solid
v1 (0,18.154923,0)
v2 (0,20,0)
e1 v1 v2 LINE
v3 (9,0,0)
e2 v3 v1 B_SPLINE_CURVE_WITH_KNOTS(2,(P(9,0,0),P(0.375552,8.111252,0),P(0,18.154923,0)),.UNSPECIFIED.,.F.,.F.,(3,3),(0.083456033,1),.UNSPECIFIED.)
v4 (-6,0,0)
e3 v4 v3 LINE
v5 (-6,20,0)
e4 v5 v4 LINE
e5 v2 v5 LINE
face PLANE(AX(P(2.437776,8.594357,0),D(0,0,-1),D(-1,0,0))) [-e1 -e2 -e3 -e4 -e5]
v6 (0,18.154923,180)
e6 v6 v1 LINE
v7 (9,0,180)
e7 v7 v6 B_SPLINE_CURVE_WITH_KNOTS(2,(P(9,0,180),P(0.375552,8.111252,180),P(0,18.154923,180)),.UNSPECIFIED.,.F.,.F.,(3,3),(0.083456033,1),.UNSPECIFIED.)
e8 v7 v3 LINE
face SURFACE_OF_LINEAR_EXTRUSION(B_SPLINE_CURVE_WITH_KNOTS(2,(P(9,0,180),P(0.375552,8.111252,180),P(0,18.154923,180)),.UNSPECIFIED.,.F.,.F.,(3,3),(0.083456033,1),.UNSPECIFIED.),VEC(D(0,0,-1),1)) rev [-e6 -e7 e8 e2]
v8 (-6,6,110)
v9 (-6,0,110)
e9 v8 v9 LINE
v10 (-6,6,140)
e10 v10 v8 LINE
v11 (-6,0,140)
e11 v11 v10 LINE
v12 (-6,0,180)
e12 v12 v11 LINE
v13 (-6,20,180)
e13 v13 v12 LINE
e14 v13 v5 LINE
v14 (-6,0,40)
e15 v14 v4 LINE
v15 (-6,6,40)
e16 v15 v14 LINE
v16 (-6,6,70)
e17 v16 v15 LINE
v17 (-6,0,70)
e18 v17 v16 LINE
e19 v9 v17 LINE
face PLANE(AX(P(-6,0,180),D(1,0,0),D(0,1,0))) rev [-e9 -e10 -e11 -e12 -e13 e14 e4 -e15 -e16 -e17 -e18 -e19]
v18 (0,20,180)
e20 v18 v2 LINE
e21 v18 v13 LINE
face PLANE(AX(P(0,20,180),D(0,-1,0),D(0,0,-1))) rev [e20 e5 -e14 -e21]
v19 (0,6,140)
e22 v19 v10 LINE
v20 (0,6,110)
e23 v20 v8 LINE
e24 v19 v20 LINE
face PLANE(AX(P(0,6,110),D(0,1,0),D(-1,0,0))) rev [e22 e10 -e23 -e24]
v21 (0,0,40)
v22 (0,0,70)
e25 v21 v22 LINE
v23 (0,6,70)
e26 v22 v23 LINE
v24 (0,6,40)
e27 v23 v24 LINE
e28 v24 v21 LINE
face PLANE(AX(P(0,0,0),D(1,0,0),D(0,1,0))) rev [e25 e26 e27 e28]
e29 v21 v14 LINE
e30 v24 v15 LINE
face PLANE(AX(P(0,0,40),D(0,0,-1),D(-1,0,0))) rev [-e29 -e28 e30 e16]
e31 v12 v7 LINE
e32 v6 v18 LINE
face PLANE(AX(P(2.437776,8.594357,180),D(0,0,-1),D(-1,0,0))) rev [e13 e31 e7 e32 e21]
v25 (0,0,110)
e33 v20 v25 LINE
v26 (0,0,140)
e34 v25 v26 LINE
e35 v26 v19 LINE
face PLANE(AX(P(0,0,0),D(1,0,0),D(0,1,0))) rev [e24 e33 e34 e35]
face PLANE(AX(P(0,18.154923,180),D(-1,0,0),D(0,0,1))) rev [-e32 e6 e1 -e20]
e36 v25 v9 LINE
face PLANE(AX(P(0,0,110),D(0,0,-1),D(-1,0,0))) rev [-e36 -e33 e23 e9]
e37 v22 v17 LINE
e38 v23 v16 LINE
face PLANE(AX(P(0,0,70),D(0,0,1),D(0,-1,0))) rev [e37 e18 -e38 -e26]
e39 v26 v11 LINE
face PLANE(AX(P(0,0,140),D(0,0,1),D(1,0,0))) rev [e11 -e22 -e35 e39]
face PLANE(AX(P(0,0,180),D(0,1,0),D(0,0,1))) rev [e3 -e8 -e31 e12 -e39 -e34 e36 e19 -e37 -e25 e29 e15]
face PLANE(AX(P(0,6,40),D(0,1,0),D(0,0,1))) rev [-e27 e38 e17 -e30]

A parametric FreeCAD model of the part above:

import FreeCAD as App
import Part
import Sketcher

V = App.Vector

doc = App.newDocument("Part")
body = doc.addObject("PartDesign::Body", "Body")

# Sketch on XY plane
sketch1 = body.newObject("Sketcher::SketchObject", "Sketch")
sketch1.AttachmentSupport = (doc.getObject("XY_Plane"), [""])
sketch1.MapMode = "FlatFace"
sketch1.addGeometry(Part.BSplineCurve([V(0, 18.154923, 0), V(0.375552, 8.111252, 0), V(9, 0, 0)], [3, 3], [0.083456033, 1], False, 2, [1, 1, 1], False), False)
sketch1.addGeometry(Part.LineSegment(V(0, 18.154923, 0), V(0, 20, 0)), False)
sketch1.addGeometry(Part.LineSegment(V(0, 20, 0), V(-6, 20, 0)), False)
sketch1.addGeometry(Part.LineSegment(V(-6, 20, 0), V(-6, 0, 0)), False)
sketch1.addGeometry(Part.LineSegment(V(-6, 0, 0), V(9, 0, 0)), False)
sketch1.addConstraint(Sketcher.Constraint("Block", 0))
sketch1.addConstraint(Sketcher.Constraint("Coincident", 0, 1, 1, 1))
sketch1.addConstraint(Sketcher.Constraint("Coincident", 1, 2, 2, 1))
sketch1.addConstraint(Sketcher.Constraint("Coincident", 2, 2, 3, 1))
sketch1.addConstraint(Sketcher.Constraint("Coincident", 3, 2, 4, 1))
sketch1.addConstraint(Sketcher.Constraint("Coincident", 4, 2, 0, 2))
sketch1.addConstraint(Sketcher.Constraint("Vertical", 1))
sketch1.addConstraint(Sketcher.Constraint("Horizontal", 2))
sketch1.addConstraint(Sketcher.Constraint("Vertical", 3))
sketch1.addConstraint(Sketcher.Constraint("Horizontal", 4))
sketch1.addConstraint(Sketcher.Constraint("DistanceX", 2, 2, 2, 1, 6.0))
sketch1.addConstraint(Sketcher.Constraint("DistanceY", 3, 2, 3, 1, 20.0))
pad1 = body.newObject("PartDesign::Pad", "Pad")
pad1.Profile = sketch1
pad1.Length = 180

# Sketch on YZ plane
sketch2 = body.newObject("Sketcher::SketchObject", "Sketch001")
sketch2.AttachmentSupport = (doc.getObject("YZ_Plane"), [""])
sketch2.MapMode = "FlatFace"
sketch2.AttachmentOffset = App.Placement(V(0, 0, -6), App.Rotation())
sketch2.addGeometry(Part.LineSegment(V(6, 40, 0), V(0, 40, 0)), False)
sketch2.addGeometry(Part.LineSegment(V(0, 40, 0), V(0, 70, 0)), False)
sketch2.addGeometry(Part.LineSegment(V(0, 70, 0), V(6, 70, 0)), False)
sketch2.addGeometry(Part.LineSegment(V(6, 70, 0), V(6, 40, 0)), False)
sketch2.addGeometry(Part.LineSegment(V(6, 110, 0), V(0, 110, 0)), False)
sketch2.addGeometry(Part.LineSegment(V(0, 110, 0), V(0, 140, 0)), False)
sketch2.addGeometry(Part.LineSegment(V(0, 140, 0), V(6, 140, 0)), False)
sketch2.addGeometry(Part.LineSegment(V(6, 140, 0), V(6, 110, 0)), False)
sketch2.addConstraint(Sketcher.Constraint("Coincident", 0, 2, 1, 1))
sketch2.addConstraint(Sketcher.Constraint("Coincident", 1, 2, 2, 1))
sketch2.addConstraint(Sketcher.Constraint("Coincident", 2, 2, 3, 1))
sketch2.addConstraint(Sketcher.Constraint("Coincident", 3, 2, 0, 1))
sketch2.addConstraint(Sketcher.Constraint("Coincident", 4, 2, 5, 1))
sketch2.addConstraint(Sketcher.Constraint("Coincident", 5, 2, 6, 1))
sketch2.addConstraint(Sketcher.Constraint("Coincident", 6, 2, 7, 1))
sketch2.addConstraint(Sketcher.Constraint("Coincident", 7, 2, 4, 1))
sketch2.addConstraint(Sketcher.Constraint("Horizontal", 0))
sketch2.addConstraint(Sketcher.Constraint("Vertical", 1))
sketch2.addConstraint(Sketcher.Constraint("Horizontal", 2))
sketch2.addConstraint(Sketcher.Constraint("Vertical", 3))
sketch2.addConstraint(Sketcher.Constraint("Horizontal", 4))
sketch2.addConstraint(Sketcher.Constraint("Vertical", 5))
sketch2.addConstraint(Sketcher.Constraint("Horizontal", 6))
sketch2.addConstraint(Sketcher.Constraint("Vertical", 7))
sketch2.addConstraint(Sketcher.Constraint("PointOnObject", 0, 2, -2))
sketch2.addConstraint(Sketcher.Constraint("PointOnObject", 4, 2, -2))
sketch2.addConstraint(Sketcher.Constraint("Vertical", 3, 2, 6, 2))
sketch2.addConstraint(Sketcher.Constraint("Equal", 3, 5))
sketch2.addConstraint(Sketcher.Constraint("DistanceX", 0, 2, 0, 1, 6.0))
sketch2.addConstraint(Sketcher.Constraint("DistanceY", 1, 1, 1, 2, 30.0))
sketch2.addConstraint(Sketcher.Constraint("DistanceY", -1, 1, 0, 2, 40.0))
sketch2.addConstraint(Sketcher.Constraint("DistanceY", -1, 1, 4, 2, 110.0))
pocket1 = body.newObject("PartDesign::Pocket", "Pocket")
pocket1.Profile = sketch2
pocket1.Length = 6
pocket1.Reversed = True

doc.recompute()
